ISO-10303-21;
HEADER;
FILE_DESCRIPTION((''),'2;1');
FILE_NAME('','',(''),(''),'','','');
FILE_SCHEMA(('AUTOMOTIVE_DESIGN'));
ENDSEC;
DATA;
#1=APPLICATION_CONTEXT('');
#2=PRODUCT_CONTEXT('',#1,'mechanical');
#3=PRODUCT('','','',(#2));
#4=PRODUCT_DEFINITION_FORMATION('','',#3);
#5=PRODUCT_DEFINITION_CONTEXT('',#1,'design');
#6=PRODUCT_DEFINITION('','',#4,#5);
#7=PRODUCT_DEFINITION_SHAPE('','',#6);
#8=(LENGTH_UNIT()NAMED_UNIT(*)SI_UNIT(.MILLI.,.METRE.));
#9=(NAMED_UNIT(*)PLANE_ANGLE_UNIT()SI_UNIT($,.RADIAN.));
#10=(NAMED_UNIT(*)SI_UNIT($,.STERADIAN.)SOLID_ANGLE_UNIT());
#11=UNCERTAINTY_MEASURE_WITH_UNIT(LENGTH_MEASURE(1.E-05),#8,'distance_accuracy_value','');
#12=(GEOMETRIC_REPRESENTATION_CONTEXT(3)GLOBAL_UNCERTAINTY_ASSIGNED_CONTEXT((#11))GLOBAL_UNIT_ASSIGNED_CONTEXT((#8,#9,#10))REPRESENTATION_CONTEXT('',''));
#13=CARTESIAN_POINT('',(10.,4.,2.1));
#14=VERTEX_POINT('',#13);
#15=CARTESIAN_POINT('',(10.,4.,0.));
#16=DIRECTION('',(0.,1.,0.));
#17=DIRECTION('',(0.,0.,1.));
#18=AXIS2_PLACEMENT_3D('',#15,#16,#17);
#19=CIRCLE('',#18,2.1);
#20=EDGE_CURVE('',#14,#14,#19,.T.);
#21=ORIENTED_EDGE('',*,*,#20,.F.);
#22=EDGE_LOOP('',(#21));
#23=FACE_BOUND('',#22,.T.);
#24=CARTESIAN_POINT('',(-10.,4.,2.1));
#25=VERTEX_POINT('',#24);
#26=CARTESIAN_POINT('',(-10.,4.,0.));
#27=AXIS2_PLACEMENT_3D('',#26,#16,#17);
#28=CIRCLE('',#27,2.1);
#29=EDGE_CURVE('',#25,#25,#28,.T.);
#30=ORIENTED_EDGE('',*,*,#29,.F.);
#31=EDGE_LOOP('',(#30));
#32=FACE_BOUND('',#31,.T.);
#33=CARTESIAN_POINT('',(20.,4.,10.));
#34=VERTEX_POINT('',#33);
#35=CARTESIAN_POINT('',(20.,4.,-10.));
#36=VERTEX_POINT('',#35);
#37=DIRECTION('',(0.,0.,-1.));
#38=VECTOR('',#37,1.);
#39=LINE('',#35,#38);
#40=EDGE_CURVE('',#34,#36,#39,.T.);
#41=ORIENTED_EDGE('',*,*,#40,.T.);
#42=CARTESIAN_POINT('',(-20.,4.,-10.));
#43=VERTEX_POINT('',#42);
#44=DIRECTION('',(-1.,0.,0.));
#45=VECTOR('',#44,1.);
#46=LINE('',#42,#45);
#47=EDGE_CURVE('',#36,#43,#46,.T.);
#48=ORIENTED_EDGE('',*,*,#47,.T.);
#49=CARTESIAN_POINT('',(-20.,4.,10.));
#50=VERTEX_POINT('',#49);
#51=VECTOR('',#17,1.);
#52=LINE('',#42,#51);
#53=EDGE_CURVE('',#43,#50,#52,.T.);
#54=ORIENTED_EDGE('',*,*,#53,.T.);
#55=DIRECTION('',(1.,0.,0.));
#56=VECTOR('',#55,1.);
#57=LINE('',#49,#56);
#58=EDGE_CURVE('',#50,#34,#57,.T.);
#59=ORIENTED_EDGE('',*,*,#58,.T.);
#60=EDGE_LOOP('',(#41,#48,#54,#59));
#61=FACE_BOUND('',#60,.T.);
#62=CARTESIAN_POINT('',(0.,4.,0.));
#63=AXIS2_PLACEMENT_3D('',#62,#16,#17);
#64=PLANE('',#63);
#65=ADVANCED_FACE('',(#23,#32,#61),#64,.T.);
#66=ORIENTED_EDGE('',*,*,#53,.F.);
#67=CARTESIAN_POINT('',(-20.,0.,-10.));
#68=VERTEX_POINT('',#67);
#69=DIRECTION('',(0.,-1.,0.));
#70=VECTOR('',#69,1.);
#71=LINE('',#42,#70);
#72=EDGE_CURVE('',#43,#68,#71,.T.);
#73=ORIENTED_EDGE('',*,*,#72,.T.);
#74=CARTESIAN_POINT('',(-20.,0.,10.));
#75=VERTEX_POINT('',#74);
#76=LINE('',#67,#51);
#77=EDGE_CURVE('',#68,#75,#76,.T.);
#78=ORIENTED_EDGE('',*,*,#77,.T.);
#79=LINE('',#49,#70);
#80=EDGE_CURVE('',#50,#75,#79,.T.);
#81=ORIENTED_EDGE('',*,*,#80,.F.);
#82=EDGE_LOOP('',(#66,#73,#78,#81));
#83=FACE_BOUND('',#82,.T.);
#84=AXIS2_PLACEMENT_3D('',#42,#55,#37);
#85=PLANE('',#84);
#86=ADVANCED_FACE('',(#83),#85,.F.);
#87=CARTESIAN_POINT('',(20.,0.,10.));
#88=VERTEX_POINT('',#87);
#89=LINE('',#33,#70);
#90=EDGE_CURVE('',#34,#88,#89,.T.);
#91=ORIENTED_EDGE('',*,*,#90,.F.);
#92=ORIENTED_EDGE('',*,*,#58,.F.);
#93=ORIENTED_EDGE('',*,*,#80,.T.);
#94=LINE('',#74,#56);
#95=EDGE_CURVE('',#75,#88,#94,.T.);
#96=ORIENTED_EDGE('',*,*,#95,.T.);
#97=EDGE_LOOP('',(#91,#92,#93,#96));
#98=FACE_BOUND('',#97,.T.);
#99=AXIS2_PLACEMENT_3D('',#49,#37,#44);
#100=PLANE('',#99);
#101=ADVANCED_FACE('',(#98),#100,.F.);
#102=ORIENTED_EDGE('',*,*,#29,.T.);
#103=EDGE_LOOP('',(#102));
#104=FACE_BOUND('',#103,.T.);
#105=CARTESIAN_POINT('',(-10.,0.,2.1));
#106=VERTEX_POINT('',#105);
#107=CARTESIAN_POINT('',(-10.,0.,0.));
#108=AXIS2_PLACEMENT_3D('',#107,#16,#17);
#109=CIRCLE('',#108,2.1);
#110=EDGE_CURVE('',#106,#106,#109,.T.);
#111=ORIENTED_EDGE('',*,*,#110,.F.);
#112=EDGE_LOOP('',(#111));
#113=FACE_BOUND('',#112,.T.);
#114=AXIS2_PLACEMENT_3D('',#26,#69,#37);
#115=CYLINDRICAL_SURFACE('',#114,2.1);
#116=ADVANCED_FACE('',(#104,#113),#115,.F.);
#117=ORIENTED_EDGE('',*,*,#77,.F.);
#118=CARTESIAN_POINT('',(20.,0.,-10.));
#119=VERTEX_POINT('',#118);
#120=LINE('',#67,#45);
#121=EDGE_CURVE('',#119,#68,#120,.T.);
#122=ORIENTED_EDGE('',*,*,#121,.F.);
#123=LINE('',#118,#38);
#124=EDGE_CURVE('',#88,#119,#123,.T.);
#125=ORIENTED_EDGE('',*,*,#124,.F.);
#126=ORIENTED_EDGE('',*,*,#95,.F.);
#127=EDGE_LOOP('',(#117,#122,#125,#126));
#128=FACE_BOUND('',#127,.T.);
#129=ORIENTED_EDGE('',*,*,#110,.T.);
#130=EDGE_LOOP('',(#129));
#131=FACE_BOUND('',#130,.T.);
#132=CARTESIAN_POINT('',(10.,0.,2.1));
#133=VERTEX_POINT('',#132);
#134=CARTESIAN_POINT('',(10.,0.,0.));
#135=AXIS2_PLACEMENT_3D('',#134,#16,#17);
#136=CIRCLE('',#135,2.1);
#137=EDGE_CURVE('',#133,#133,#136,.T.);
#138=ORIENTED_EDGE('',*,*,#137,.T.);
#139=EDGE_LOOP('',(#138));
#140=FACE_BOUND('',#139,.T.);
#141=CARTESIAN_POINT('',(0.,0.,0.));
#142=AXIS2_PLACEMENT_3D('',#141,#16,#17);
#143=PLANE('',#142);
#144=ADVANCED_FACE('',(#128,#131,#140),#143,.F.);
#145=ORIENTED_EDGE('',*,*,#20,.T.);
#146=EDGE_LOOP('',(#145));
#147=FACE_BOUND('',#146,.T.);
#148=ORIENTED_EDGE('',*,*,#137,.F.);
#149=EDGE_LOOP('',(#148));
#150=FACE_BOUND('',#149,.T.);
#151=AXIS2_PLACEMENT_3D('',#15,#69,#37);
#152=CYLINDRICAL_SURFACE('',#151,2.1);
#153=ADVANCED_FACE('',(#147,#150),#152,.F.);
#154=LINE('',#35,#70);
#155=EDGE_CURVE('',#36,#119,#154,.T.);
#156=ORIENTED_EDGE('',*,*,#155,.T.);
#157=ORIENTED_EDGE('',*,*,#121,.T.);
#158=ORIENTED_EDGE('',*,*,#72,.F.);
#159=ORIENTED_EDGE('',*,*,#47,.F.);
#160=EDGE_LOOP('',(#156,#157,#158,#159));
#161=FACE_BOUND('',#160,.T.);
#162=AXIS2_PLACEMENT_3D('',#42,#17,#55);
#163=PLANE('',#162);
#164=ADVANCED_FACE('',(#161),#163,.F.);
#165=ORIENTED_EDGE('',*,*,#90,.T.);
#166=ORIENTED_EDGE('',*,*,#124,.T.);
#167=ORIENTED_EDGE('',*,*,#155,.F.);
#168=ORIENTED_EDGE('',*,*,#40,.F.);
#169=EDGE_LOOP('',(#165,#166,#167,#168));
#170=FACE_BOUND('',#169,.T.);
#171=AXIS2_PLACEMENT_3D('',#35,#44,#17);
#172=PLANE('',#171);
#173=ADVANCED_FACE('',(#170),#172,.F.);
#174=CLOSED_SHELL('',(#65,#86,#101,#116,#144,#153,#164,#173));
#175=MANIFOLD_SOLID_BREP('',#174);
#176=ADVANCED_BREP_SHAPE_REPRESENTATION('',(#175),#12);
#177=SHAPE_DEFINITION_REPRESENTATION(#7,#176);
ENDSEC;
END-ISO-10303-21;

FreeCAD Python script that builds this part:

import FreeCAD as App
import Part
import Sketcher

V = App.Vector


def add_polygon(sketch, points):
    """Adds a closed chain of lines whose ends are joined by coincident constraints."""
    first, n = sketch.GeometryCount, len(points)
    for a, b in zip(points, points[1:] + points[:1]):
        sketch.addGeometry(Part.LineSegment(App.Vector(*a, 0), App.Vector(*b, 0)), False)
    for i in range(n):
        sketch.addConstraint(Sketcher.Constraint("Coincident", first + i, 2, first + (i + 1) % n, 1))

doc = App.newDocument("Part")
body = doc.addObject("PartDesign::Body", "Body")

# Sketch on XZ plane
sketch1 = doc.addObject("Sketcher::SketchObject", "Sketch")
body.addObject(sketch1)
sketch1.AttachmentSupport = (doc.XZ_Plane, [""])
sketch1.MapMode = "FlatFace"
add_polygon(sketch1, [(-20, -10), (-20, 10), (20, 10), (20, -10)])  # lines 0-3
sketch1.addGeometry(Part.Circle(V(-10, 0, 0), V(0, 0, 1), 2.1), False)  # 4
sketch1.addGeometry(Part.Circle(V(10, 0, 0), V(0, 0, 1), 2.1), False)  # 5
sketch1.addConstraint([
    Sketcher.Constraint("Vertical", 0),
    Sketcher.Constraint("Horizontal", 1),
    Sketcher.Constraint("Vertical", 2),
    Sketcher.Constraint("Horizontal", 3),
    Sketcher.Constraint("Equal", 4, 5),
    Sketcher.Constraint("Symmetric", 4, 3, 5, 3, -1, 1),
    Sketcher.Constraint("Symmetric", 0, 2, 2, 2, -1, 1),
    Sketcher.Constraint("PointOnObject", 4, 3, -1),
    Sketcher.Constraint("Diameter", 4, 4.2),
    Sketcher.Constraint("DistanceX", 1, 1, 1, 2, 40.0),
    Sketcher.Constraint("DistanceY", 0, 1, 0, 2, 20.0),
    Sketcher.Constraint("DistanceX", 4, 3, -1, 1, 10.0),
])
pad1 = doc.addObject("PartDesign::Pad", "Pad")
body.addObject(pad1)
pad1.Profile = sketch1
pad1.Length = 4
pad1.Reversed = True

doc.recompute()
